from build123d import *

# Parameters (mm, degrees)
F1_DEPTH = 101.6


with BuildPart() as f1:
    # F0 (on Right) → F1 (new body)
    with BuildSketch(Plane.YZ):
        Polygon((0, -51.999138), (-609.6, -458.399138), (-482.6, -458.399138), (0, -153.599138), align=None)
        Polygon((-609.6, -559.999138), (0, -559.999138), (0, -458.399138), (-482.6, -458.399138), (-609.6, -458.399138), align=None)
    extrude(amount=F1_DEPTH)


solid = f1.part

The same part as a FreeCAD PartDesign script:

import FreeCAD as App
import Part
import Sketcher

V = App.Vector
Q = App.Units.Quantity


def add_polygon(sketch, points):
    """Adds a closed chain of lines whose ends are joined by coincident constraints."""
    first, n = sketch.GeometryCount, len(points)
    for a, b in zip(points, points[1:] + points[:1]):
        sketch.addGeometry(Part.LineSegment(App.Vector(*a, 0), App.Vector(*b, 0)), False)
    for i in range(n):
        sketch.addConstraint(Sketcher.Constraint("Coincident", first + i, 2, first + (i + 1) % n, 1))

doc = App.newDocument("Part")
body = doc.addObject("PartDesign::Body", "Body")

sketch1 = body.newObject("Sketcher::SketchObject", "Sketch")
sketch1.AttachmentSupport = (doc.getObject("YZ_Plane"), [""])
sketch1.MapMode = "FlatFace"
add_polygon(sketch1, [(0, -52), (-610, -458), (-610, -560), (0, -560), (0, -458), (-483, -458), (0, -154)])
sketch1.addConstraint([
    Sketcher.Constraint("Vertical", 1),
    Sketcher.Constraint("Horizontal", 2),
    Sketcher.Constraint("Vertical", 3),
    Sketcher.Constraint("Horizontal", 4),
    Sketcher.Constraint("Vertical", 6),
    Sketcher.Constraint("PointOnObject", 2, 2, -2),
    Sketcher.Constraint("PointOnObject", 5, 2, -2),
    Sketcher.Constraint("Horizontal", 0, 2, 3, 2),
    Sketcher.Constraint("Equal", 3, 6),
    Sketcher.Constraint("DistanceX", 2, 1, 2, 2, Q("24 in")),
    Sketcher.Constraint("DistanceX", 4, 2, 4, 1, Q("19 in")),
    Sketcher.Constraint("DistanceY", 1, 2, 1, 1, Q("4 in")),
    Sketcher.Constraint("DistanceY", 3, 2, 5, 2, Q("12 in")),
    Sketcher.Constraint("DistanceY", 0, 2, -1, 1, 458.399138),
])
pad1 = body.newObject("PartDesign::Pad", "Pad")
pad1.Profile = sketch1
pad1.Length = Q("4 in")

doc.recompute()
